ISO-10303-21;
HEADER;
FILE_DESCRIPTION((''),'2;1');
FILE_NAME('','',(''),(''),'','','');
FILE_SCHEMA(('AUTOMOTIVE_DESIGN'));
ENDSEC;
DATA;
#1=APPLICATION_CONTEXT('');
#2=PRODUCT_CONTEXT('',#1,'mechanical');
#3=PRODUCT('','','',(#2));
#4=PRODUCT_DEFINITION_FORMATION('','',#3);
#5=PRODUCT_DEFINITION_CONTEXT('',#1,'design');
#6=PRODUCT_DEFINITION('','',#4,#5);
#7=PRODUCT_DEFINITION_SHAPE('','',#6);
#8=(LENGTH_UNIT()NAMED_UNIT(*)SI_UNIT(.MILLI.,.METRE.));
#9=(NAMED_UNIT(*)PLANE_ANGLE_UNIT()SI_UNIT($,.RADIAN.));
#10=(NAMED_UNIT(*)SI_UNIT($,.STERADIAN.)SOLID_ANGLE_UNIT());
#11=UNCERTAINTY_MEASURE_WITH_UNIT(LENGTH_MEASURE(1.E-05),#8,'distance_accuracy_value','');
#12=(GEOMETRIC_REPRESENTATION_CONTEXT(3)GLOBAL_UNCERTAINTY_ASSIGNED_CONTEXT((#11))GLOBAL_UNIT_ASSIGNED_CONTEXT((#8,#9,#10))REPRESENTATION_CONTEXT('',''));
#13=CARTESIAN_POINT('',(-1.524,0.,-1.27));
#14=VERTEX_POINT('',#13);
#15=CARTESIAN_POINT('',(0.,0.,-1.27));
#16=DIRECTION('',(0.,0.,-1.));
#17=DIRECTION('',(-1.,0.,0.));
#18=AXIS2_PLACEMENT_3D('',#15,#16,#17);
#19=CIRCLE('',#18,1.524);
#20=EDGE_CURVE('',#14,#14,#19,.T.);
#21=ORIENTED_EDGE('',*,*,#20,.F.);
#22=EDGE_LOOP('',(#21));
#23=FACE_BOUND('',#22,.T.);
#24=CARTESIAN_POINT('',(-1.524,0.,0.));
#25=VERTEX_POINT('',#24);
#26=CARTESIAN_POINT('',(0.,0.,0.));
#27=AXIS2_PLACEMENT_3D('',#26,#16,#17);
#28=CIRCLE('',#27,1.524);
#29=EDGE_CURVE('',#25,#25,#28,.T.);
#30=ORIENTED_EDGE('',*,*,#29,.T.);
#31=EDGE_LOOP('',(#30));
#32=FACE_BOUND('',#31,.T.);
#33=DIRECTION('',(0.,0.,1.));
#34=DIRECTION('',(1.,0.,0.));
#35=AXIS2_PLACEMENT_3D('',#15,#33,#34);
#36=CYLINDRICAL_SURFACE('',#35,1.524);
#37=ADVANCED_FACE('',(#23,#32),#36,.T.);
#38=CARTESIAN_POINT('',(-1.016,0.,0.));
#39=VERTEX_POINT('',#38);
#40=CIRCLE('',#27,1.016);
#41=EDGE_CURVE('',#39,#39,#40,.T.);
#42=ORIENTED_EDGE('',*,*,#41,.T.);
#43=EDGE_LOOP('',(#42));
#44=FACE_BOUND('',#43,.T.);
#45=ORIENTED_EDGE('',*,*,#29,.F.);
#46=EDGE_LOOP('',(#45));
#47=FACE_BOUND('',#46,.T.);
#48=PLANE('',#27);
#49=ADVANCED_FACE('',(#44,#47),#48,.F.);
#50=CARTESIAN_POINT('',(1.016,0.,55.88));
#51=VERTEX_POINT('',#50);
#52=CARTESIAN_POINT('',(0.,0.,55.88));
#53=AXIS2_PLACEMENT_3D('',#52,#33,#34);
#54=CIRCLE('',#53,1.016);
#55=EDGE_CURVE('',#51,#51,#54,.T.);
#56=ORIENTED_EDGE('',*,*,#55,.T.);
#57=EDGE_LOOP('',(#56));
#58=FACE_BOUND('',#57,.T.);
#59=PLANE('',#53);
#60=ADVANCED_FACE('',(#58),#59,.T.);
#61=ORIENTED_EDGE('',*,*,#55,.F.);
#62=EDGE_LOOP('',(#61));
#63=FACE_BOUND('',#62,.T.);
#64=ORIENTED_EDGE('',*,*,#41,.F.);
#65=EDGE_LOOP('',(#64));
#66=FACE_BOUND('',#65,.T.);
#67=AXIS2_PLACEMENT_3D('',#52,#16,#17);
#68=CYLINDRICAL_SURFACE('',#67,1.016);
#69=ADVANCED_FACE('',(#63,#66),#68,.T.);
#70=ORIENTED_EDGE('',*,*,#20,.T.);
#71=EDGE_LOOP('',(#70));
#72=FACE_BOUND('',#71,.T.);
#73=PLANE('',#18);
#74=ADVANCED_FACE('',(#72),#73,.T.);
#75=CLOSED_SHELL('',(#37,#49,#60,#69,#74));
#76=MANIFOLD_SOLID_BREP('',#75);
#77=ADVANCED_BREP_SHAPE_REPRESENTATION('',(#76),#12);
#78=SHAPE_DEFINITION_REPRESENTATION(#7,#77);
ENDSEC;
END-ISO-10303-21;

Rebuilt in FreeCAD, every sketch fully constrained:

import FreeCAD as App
import Part
import Sketcher

V = App.Vector
Q = App.Units.Quantity

doc = App.newDocument("Part")
body = doc.addObject("PartDesign::Body", "Body")

# Sketch on XY plane
sketch1 = body.newObject("Sketcher::SketchObject", "Sketch")
sketch1.AttachmentSupport = (doc.getObject("XY_Plane"), [""])
sketch1.MapMode = "FlatFace"
sketch1.addGeometry(Part.Circle(V(0, 0, 0), V(0, 0, 1), 1), False)
sketch1.addConstraint(Sketcher.Constraint("Coincident", 0, 3, -1, 1))
sketch1.addConstraint(Sketcher.Constraint("Diameter", 0, Q("0.08 in")))
pad1 = body.newObject("PartDesign::Pad", "Pad")
pad1.Profile = sketch1
pad1.Length = Q("2.2 in")

# Sketch on XY plane
sketch2 = body.newObject("Sketcher::SketchObject", "Sketch001")
sketch2.AttachmentSupport = (doc.getObject("XY_Plane"), [""])
sketch2.MapMode = "FlatFace"
sketch2.addGeometry(Part.Circle(V(0, 0, 0), V(0, 0, 1), 1.5), False)
sketch2.addConstraint(Sketcher.Constraint("Coincident", 0, 3, -1, 1))
sketch2.addConstraint(Sketcher.Constraint("Diameter", 0, Q("0.12 in")))
pad2 = body.newObject("PartDesign::Pad", "Pad001")
pad2.Profile = sketch2
pad2.Length = Q("0.05 in")
pad2.Reversed = True

doc.recompute()
